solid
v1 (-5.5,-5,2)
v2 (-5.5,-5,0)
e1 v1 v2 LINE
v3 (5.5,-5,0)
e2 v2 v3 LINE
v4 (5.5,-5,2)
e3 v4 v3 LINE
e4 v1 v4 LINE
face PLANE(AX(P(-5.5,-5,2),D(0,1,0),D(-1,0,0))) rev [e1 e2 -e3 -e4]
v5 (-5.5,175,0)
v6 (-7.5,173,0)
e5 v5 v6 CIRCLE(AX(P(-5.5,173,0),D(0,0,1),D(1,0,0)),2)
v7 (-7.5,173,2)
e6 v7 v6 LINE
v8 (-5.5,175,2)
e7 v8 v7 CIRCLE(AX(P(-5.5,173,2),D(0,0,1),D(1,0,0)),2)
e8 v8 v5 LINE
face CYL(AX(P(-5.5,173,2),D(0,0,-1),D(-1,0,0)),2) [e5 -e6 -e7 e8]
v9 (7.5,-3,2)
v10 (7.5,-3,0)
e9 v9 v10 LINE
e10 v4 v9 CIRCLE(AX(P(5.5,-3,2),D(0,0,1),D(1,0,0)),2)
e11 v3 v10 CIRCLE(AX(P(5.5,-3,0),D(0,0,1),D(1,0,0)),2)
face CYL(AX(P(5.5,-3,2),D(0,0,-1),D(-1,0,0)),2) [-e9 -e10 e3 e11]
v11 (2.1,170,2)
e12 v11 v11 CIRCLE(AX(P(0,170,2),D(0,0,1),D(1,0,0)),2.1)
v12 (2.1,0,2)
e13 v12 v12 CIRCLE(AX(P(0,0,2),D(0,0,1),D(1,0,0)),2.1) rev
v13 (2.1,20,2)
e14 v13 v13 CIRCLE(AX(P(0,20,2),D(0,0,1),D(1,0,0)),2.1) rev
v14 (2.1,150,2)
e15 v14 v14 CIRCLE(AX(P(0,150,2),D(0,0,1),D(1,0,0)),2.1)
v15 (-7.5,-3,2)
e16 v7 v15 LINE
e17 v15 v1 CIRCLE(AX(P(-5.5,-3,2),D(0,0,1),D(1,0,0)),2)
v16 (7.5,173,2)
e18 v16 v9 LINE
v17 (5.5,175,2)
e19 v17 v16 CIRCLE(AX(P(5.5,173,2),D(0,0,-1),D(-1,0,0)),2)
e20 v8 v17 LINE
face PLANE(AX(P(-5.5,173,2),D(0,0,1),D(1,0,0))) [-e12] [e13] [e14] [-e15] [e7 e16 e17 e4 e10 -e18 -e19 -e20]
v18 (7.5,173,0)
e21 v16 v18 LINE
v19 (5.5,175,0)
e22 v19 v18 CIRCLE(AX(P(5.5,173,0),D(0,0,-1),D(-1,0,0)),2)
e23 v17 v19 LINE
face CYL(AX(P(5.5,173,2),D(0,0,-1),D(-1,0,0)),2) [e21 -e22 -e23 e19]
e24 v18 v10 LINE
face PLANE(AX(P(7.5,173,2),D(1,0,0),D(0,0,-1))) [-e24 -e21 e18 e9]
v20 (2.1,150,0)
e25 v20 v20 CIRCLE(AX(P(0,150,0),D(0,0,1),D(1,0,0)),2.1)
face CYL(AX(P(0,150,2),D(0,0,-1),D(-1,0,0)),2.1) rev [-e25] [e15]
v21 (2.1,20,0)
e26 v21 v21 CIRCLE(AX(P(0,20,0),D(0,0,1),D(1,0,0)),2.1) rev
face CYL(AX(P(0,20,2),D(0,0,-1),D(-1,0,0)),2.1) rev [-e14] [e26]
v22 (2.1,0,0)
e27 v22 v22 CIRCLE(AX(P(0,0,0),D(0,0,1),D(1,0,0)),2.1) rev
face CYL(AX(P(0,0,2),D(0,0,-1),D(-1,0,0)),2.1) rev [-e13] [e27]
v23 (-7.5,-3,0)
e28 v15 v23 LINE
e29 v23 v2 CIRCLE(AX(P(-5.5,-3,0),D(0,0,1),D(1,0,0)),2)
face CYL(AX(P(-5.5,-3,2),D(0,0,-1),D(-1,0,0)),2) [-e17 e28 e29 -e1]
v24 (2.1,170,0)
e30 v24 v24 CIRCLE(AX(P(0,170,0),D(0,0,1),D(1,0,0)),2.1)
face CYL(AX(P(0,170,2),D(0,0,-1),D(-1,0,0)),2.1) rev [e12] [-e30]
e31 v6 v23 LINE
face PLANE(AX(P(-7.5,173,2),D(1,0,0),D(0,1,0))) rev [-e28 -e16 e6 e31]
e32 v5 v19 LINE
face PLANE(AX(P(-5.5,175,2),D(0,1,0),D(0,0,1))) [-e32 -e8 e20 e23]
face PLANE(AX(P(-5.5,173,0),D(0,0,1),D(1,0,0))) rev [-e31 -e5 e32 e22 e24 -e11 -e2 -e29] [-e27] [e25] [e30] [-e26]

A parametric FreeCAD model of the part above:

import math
import FreeCAD as App
import Part
import Sketcher
Q = App.Units.Quantity

doc = App.newDocument("Part")
body = doc.addObject("PartDesign::Body", "Body")

# Sketch on XY plane
sketch1 = body.newObject("Sketcher::SketchObject", "Sketch")
sketch1.AttachmentSupport = (doc.getObject("XY_Plane"), [""])
sketch1.MapMode = "FlatFace"
sketch1.addGeometry(Part.LineSegment(App.Vector(-7.5, 173, 0), App.Vector(-7.5, -3, 0)), False)
sketch1.addGeometry(Part.ArcOfCircle(Part.Circle(App.Vector(-5.5, -3, 0), App.Vector(0, 0, 1), 2), math.radians(-180), math.radians(-90)), False)
sketch1.addGeometry(Part.LineSegment(App.Vector(-5.5, -5, 0), App.Vector(5.5, -5, 0)), False)
sketch1.addGeometry(Part.ArcOfCircle(Part.Circle(App.Vector(5.5, -3, 0), App.Vector(0, 0, 1), 2), math.radians(-90), math.radians(0)), False)
sketch1.addGeometry(Part.LineSegment(App.Vector(7.5, -3, 0), App.Vector(7.5, 173, 0)), False)
sketch1.addGeometry(Part.ArcOfCircle(Part.Circle(App.Vector(5.5, 173, 0), App.Vector(0, 0, 1), 2), math.radians(0), math.radians(90)), False)
sketch1.addGeometry(Part.LineSegment(App.Vector(5.5, 175, 0), App.Vector(-5.5, 175, 0)), False)
sketch1.addGeometry(Part.ArcOfCircle(Part.Circle(App.Vector(-5.5, 173, 0), App.Vector(0, 0, 1), 2), math.radians(90), math.radians(180)), False)
sketch1.addGeometry(Part.Circle(App.Vector(0, 0, 0), App.Vector(0, 0, 1), 2.1), False)
sketch1.addGeometry(Part.Circle(App.Vector(0, 20, 0), App.Vector(0, 0, 1), 2.1), False)
sketch1.addGeometry(Part.Circle(App.Vector(0, 150, 0), App.Vector(0, 0, 1), 2.1), False)
sketch1.addGeometry(Part.Circle(App.Vector(0, 170, 0), App.Vector(0, 0, 1), 2.1), False)
sketch1.addConstraint(Sketcher.Constraint("Tangent", 0, 2, 1, 1))
sketch1.addConstraint(Sketcher.Constraint("Tangent", 1, 2, 2, 1))
sketch1.addConstraint(Sketcher.Constraint("Tangent", 2, 2, 3, 1))
sketch1.addConstraint(Sketcher.Constraint("Tangent", 3, 2, 4, 1))
sketch1.addConstraint(Sketcher.Constraint("Tangent", 4, 2, 5, 1))
sketch1.addConstraint(Sketcher.Constraint("Tangent", 5, 2, 6, 1))
sketch1.addConstraint(Sketcher.Constraint("Tangent", 6, 2, 7, 1))
sketch1.addConstraint(Sketcher.Constraint("Tangent", 7, 2, 0, 1))
sketch1.addConstraint(Sketcher.Constraint("Vertical", 0))
sketch1.addConstraint(Sketcher.Constraint("Horizontal", 2))
sketch1.addConstraint(Sketcher.Constraint("Vertical", 4))
sketch1.addConstraint(Sketcher.Constraint("Horizontal", 6))
sketch1.addConstraint(Sketcher.Constraint("Coincident", 8, 3, -1, 1))
sketch1.addConstraint(Sketcher.Constraint("Equal", 1, 3))
sketch1.addConstraint(Sketcher.Constraint("Equal", 3, 5))
sketch1.addConstraint(Sketcher.Constraint("Equal", 5, 7))
sketch1.addConstraint(Sketcher.Constraint("Equal", 8, 9))
sketch1.addConstraint(Sketcher.Constraint("Equal", 9, 10))
sketch1.addConstraint(Sketcher.Constraint("Equal", 10, 11))
sketch1.addConstraint(Sketcher.Constraint("PointOnObject", 9, 3, -2))
sketch1.addConstraint(Sketcher.Constraint("PointOnObject", 10, 3, -2))
sketch1.addConstraint(Sketcher.Constraint("PointOnObject", 11, 3, -2))
sketch1.addConstraint(Sketcher.Constraint("Radius", 1, Q("2 mm")))
sketch1.addConstraint(Sketcher.Constraint("Diameter", 8, Q("4.2 mm")))
sketch1.addConstraint(Sketcher.Constraint("DistanceX", 2, 1, 2, 2, Q("11 mm")))
sketch1.addConstraint(Sketcher.Constraint("DistanceY", 0, 2, 0, 1, Q("176 mm")))
sketch1.addConstraint(Sketcher.Constraint("DistanceY", 1, 3, -1, 1, Q("3 mm")))
sketch1.addConstraint(Sketcher.Constraint("DistanceY", -1, 1, 9, 3, Q("20 mm")))
sketch1.addConstraint(Sketcher.Constraint("DistanceY", -1, 1, 10, 3, Q("150 mm")))
sketch1.addConstraint(Sketcher.Constraint("DistanceY", -1, 1, 11, 3, Q("170 mm")))
sketch1.addConstraint(Sketcher.Constraint("DistanceX", 1, 3, -1, 1, Q("5.5 mm")))
pad1 = body.newObject("PartDesign::Pad", "Pad")
pad1.Profile = sketch1
pad1.Length = 2

doc.recompute()
